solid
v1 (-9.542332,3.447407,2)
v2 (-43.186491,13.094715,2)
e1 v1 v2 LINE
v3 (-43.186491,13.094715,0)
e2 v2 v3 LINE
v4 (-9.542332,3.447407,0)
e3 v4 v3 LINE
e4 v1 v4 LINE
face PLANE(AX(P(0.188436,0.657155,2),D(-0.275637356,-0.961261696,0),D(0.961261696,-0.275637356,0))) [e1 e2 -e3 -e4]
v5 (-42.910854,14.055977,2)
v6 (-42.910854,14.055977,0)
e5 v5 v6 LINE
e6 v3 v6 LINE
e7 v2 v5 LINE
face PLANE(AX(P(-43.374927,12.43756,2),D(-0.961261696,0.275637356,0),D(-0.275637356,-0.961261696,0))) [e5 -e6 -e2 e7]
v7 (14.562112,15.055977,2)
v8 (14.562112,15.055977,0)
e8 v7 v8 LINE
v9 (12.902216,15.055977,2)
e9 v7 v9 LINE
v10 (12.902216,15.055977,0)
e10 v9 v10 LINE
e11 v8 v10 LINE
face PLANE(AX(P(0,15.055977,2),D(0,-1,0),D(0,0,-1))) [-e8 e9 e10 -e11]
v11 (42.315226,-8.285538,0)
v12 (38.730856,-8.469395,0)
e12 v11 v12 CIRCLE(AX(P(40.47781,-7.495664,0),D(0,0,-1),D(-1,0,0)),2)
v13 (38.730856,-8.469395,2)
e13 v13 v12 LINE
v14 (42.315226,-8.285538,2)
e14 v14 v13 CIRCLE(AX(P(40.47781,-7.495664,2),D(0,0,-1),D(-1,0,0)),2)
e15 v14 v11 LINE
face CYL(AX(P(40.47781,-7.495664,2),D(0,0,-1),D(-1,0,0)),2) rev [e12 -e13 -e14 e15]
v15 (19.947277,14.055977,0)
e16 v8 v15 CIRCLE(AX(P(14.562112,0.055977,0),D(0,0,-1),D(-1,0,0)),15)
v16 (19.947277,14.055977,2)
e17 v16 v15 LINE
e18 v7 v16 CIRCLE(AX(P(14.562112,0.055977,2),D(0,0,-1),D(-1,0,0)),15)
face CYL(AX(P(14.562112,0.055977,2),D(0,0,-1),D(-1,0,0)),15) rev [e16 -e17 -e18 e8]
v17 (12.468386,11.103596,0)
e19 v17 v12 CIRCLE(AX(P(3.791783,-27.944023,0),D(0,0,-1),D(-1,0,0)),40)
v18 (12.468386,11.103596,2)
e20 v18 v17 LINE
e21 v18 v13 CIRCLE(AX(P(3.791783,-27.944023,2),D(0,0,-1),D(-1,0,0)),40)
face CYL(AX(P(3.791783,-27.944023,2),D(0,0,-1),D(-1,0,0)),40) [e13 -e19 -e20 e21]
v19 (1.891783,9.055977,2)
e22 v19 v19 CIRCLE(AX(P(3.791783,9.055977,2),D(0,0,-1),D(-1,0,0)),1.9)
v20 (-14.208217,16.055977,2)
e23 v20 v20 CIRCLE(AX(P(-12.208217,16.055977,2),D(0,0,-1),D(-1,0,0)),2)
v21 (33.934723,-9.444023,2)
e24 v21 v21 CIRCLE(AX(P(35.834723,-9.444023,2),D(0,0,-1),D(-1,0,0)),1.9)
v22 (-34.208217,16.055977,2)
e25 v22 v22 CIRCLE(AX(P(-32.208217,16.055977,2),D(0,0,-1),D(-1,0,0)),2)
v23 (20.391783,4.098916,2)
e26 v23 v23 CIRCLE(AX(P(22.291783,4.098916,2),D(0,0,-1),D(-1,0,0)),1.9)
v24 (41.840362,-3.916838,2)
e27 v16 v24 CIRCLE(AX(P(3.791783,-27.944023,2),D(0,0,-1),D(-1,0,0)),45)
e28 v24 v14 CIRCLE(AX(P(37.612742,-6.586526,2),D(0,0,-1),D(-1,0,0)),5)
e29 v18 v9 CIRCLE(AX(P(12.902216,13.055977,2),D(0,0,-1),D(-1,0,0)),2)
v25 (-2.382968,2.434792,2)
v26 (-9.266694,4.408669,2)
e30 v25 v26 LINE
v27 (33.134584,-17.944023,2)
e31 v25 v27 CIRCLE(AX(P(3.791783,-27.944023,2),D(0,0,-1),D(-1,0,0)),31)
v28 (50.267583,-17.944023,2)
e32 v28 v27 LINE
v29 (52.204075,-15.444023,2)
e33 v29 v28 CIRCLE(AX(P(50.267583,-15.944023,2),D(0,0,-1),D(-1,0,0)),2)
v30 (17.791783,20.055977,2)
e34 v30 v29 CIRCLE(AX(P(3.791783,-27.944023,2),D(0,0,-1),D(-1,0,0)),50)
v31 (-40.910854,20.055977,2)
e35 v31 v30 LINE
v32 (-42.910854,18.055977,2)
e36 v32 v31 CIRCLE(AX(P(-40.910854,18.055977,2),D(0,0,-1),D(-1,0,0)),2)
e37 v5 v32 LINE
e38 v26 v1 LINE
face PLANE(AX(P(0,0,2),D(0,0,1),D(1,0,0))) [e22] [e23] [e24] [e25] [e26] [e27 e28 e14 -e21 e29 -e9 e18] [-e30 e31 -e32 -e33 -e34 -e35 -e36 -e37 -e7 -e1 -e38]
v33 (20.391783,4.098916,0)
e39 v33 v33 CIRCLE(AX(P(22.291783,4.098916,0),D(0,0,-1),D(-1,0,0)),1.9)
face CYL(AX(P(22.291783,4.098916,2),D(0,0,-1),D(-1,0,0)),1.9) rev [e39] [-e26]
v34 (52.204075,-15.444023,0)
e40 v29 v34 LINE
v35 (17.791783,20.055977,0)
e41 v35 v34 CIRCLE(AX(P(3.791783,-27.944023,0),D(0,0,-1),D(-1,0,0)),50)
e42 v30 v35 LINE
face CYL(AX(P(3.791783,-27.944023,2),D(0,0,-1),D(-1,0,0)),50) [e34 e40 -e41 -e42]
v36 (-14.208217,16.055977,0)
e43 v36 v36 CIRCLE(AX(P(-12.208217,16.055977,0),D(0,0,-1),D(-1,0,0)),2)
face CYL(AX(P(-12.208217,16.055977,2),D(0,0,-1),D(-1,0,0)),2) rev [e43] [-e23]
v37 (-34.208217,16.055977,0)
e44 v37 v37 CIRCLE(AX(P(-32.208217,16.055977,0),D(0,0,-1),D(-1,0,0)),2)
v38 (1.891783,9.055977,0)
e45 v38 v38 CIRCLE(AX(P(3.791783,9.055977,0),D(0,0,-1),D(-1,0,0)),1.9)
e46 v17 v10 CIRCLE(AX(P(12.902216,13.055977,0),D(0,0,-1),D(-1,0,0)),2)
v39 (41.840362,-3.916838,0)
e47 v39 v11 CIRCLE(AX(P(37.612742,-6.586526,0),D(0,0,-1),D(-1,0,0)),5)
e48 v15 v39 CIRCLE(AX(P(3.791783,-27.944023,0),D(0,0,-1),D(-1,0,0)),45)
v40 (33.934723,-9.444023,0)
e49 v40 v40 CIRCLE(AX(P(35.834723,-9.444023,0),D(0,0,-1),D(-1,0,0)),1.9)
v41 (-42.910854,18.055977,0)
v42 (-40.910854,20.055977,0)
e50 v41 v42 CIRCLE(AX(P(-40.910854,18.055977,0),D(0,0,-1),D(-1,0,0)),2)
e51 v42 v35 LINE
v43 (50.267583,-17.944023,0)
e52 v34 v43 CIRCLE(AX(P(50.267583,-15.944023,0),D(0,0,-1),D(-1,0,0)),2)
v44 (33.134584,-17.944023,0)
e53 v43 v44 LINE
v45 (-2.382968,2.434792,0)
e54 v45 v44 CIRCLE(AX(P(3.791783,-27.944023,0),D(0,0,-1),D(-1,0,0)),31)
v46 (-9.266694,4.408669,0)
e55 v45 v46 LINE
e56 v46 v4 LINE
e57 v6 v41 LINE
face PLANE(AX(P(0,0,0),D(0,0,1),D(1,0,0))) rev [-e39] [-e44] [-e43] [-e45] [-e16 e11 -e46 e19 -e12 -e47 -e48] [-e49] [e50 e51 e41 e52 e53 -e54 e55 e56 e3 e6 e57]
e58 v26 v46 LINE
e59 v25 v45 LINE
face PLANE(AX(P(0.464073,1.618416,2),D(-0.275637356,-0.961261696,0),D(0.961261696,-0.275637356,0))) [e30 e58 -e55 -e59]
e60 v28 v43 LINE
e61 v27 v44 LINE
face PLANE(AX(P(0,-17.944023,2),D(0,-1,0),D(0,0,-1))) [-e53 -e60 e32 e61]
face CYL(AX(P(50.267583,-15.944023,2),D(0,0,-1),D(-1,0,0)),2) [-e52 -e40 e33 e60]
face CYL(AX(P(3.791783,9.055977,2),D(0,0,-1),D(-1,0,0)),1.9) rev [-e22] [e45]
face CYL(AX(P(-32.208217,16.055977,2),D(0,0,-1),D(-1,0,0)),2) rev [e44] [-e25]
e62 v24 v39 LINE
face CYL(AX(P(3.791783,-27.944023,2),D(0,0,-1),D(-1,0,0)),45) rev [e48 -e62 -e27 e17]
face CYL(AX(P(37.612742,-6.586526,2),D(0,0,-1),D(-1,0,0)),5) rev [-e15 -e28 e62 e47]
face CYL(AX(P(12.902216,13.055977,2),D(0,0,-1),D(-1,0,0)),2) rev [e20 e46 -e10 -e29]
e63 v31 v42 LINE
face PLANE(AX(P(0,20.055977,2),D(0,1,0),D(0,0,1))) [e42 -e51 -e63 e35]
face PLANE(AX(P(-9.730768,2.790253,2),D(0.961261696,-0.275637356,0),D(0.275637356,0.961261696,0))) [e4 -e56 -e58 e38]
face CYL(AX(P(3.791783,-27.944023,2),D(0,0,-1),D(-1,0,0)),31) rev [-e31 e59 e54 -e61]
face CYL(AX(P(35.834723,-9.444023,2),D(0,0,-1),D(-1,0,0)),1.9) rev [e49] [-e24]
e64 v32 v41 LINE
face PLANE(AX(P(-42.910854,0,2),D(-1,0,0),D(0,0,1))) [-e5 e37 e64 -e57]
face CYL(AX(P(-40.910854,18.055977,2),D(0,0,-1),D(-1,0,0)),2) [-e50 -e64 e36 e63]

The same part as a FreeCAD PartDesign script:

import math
import FreeCAD as App
import Part
import Sketcher
from FreeCAD import Vector
Q = App.Units.Quantity

doc = App.newDocument("Part")
body = doc.addObject("PartDesign::Body", "Body")

sketch1 = body.newObject("Sketcher::SketchObject", "Sketch")
sketch1.AttachmentSupport = (doc.getObject("XY_Plane"), [""])
sketch1.MapMode = "FlatFace"
sketch1.addGeometry(Part.LineSegment(Vector(-64.217737, 32.735995, 0), Vector(-64.217737, -32.735995, 0)), False)
sketch1.addGeometry(Part.LineSegment(Vector(-64.217737, -32.735995, 0), Vector(64.217737, -32.735995, 0)), False)
sketch1.addGeometry(Part.LineSegment(Vector(64.217737, -32.735995, 0), Vector(64.217737, 32.735995, 0)), False)
sketch1.addGeometry(Part.LineSegment(Vector(64.217737, 32.735995, 0), Vector(-64.217737, 32.735995, 0)), False)
sketch1.addConstraint(Sketcher.Constraint("Coincident", 0, 2, 1, 1))
sketch1.addConstraint(Sketcher.Constraint("Coincident", 1, 2, 2, 1))
sketch1.addConstraint(Sketcher.Constraint("Coincident", 2, 2, 3, 1))
sketch1.addConstraint(Sketcher.Constraint("Coincident", 3, 2, 0, 1))
sketch1.addConstraint(Sketcher.Constraint("Vertical", 0))
sketch1.addConstraint(Sketcher.Constraint("Horizontal", 1))
sketch1.addConstraint(Sketcher.Constraint("Vertical", 2))
sketch1.addConstraint(Sketcher.Constraint("Horizontal", 3))
sketch1.addConstraint(Sketcher.Constraint("Symmetric", 0, 2, 2, 2, -1, 1))
sketch1.addConstraint(Sketcher.Constraint("DistanceY", 0, 2, 0, 1, Q("65.47199 mm")))
sketch1.addConstraint(Sketcher.Constraint("DistanceX", 1, 1, 1, 2, Q("128.435474 mm")))
pad1 = body.newObject("PartDesign::Pad", "Pad")
pad1.Profile = sketch1
pad1.Length = 2

sketch2 = body.newObject("Sketcher::SketchObject", "Sketch001")
sketch2.AttachmentSupport = (doc.getObject("XY_Plane"), [""])
sketch2.MapMode = "FlatFace"
sketch2.addGeometry(Part.LineSegment(Vector(64.217737, 32.735995, 0), Vector(64.217737, -32.735995, 0)), False)
sketch2.addGeometry(Part.LineSegment(Vector(64.217737, -32.735995, 0), Vector(-64.217737, -32.735995, 0)), False)
sketch2.addGeometry(Part.LineSegment(Vector(-64.217737, -32.735995, 0), Vector(-64.217737, 32.735995, 0)), False)
sketch2.addGeometry(Part.LineSegment(Vector(-64.217737, 32.735995, 0), Vector(64.217737, 32.735995, 0)), False)
sketch2.addGeometry(Part.ArcOfCircle(Part.Circle(Vector(50.267583, -15.944023, 0), Vector(0, 0, 1), 2), math.radians(-90), math.radians(14.477512)), False)
sketch2.addGeometry(Part.ArcOfCircle(Part.Circle(Vector(3.791783, -27.944023, 0), Vector(0, 0, 1), 50), math.radians(14.477512), math.radians(73.739795)), False)
sketch2.addGeometry(Part.LineSegment(Vector(17.791783, 20.055977, 0), Vector(-40.910854, 20.055977, 0)), False)
sketch2.addGeometry(Part.ArcOfCircle(Part.Circle(Vector(-40.910854, 18.055977, 0), Vector(0, 0, 1), 2), math.radians(90), math.radians(180)), False)
sketch2.addGeometry(Part.LineSegment(Vector(-42.910854, 18.055977, 0), Vector(-42.910854, 14.055977, 0)), False)
sketch2.addGeometry(Part.LineSegment(Vector(-42.910854, 14.055977, 0), Vector(-43.186491, 13.094715, 0)), False)
sketch2.addGeometry(Part.LineSegment(Vector(-43.186491, 13.094715, 0), Vector(-19.604064, 6.332563, 0)), False)
sketch2.addGeometry(Part.LineSegment(Vector(-19.604064, 6.332563, 0), Vector(-9.542332, 3.447407, 0)), False)
sketch2.addGeometry(Part.LineSegment(Vector(-9.542332, 3.447407, 0), Vector(-9.266694, 4.408669, 0)), False)
sketch2.addGeometry(Part.LineSegment(Vector(-9.266694, 4.408669, 0), Vector(-2.382968, 2.434792, 0)), False)
sketch2.addGeometry(Part.ArcOfCircle(Part.Circle(Vector(3.791783, -27.944023, 0), Vector(0, 0, 1), 31), math.radians(18.819063), math.radians(101.489334)), False)
sketch2.addGeometry(Part.LineSegment(Vector(33.134584, -17.944023, 0), Vector(50.267583, -17.944023, 0)), False)
sketch2.addGeometry(Part.ArcOfCircle(Part.Circle(Vector(12.902216, 13.055977, 0), Vector(0, 0, 1), 2), math.radians(-176.725453), math.radians(-102.527905)), False)
sketch2.addGeometry(Part.ArcOfCircle(Part.Circle(Vector(12.902216, 13.055977, 0), Vector(0, 0, 1), 2), math.radians(90), math.radians(183.274547)), False)
sketch2.addGeometry(Part.LineSegment(Vector(12.902216, 15.055977, 0), Vector(14.562112, 15.055977, 0)), False)
sketch2.addGeometry(Part.ArcOfCircle(Part.Circle(Vector(14.562112, 0.055977, 0), Vector(0, 0, 1), 15), math.radians(68.96053), math.radians(90)), False)
sketch2.addGeometry(Part.ArcOfCircle(Part.Circle(Vector(3.791783, -27.944023, 0), Vector(0, 0, 1), 45), math.radians(32.27188), math.radians(68.96053)), False)
sketch2.addGeometry(Part.ArcOfCircle(Part.Circle(Vector(37.612742, -6.586526, 0), Vector(0, 0, 1), 5), math.radians(-19.864847), math.radians(32.27188)), False)
sketch2.addGeometry(Part.ArcOfCircle(Part.Circle(Vector(40.47781, -7.495664, 0), Vector(0, 0, 1), 2), math.radians(-76.667671), math.radians(-23.26207)), False)
sketch2.addGeometry(Part.ArcOfCircle(Part.Circle(Vector(40.47781, -7.495664, 0), Vector(0, 0, 1), 2), math.radians(-150.865219), math.radians(-76.667671)), False)
sketch2.addGeometry(Part.ArcOfCircle(Part.Circle(Vector(3.791783, -27.944023, 0), Vector(0, 0, 1), 40), math.radians(29.134781), math.radians(77.472095)), False)
sketch2.addConstraint(Sketcher.Constraint("Coincident", 0, 2, 1, 1))
sketch2.addConstraint(Sketcher.Constraint("Coincident", 1, 2, 2, 1))
sketch2.addConstraint(Sketcher.Constraint("Coincident", 2, 2, 3, 1))
sketch2.addConstraint(Sketcher.Constraint("Coincident", 3, 2, 0, 1))
sketch2.addConstraint(Sketcher.Constraint("Tangent", 4, 2, 5, 1))
sketch2.addConstraint(Sketcher.Constraint("Coincident", 5, 2, 6, 1))
sketch2.addConstraint(Sketcher.Constraint("Tangent", 6, 2, 7, 1))
sketch2.addConstraint(Sketcher.Constraint("Tangent", 7, 2, 8, 1))
sketch2.addConstraint(Sketcher.Constraint("Coincident", 8, 2, 9, 1))
sketch2.addConstraint(Sketcher.Constraint("Coincident", 9, 2, 10, 1))
sketch2.addConstraint(Sketcher.Constraint("Coincident", 10, 2, 11, 1))
sketch2.addConstraint(Sketcher.Constraint("Coincident", 11, 2, 12, 1))
sketch2.addConstraint(Sketcher.Constraint("Coincident", 12, 2, 13, 1))
sketch2.addConstraint(Sketcher.Constraint("Coincident", 13, 2, 14, 2))
sketch2.addConstraint(Sketcher.Constraint("Coincident", 14, 1, 15, 1))
sketch2.addConstraint(Sketcher.Constraint("Tangent", 15, 2, 4, 1))
sketch2.addConstraint(Sketcher.Constraint("Tangent", 16, 1, 17, 2))
sketch2.addConstraint(Sketcher.Constraint("Tangent", 17, 1, 18, 1))
sketch2.addConstraint(Sketcher.Constraint("Tangent", 18, 2, 19, 2))
sketch2.addConstraint(Sketcher.Constraint("Tangent", 19, 1, 20, 2))
sketch2.addConstraint(Sketcher.Constraint("Tangent", 20, 1, 21, 2))
sketch2.addConstraint(Sketcher.Constraint("Coincident", 21, 1, 22, 2))
sketch2.addConstraint(Sketcher.Constraint("Tangent", 22, 1, 23, 2))
sketch2.addConstraint(Sketcher.Constraint("Tangent", 23, 1, 24, 1))
sketch2.addConstraint(Sketcher.Constraint("Tangent", 24, 2, 16, 2))
sketch2.addConstraint(Sketcher.Constraint("Vertical", 0))
sketch2.addConstraint(Sketcher.Constraint("Horizontal", 1))
sketch2.addConstraint(Sketcher.Constraint("Vertical", 2))
sketch2.addConstraint(Sketcher.Constraint("Horizontal", 3))
sketch2.addConstraint(Sketcher.Constraint("Horizontal", 6))
sketch2.addConstraint(Sketcher.Constraint("Vertical", 8))
sketch2.addConstraint(Sketcher.Constraint("Horizontal", 15))
sketch2.addConstraint(Sketcher.Constraint("Horizontal", 18))
sketch2.addConstraint(Sketcher.Constraint("Coincident", 14, 3, 5, 3))
sketch2.addConstraint(Sketcher.Constraint("Coincident", 20, 3, 5, 3))
sketch2.addConstraint(Sketcher.Constraint("Coincident", 24, 3, 5, 3))
sketch2.addConstraint(Sketcher.Constraint("Equal", 4, 7))
sketch2.addConstraint(Sketcher.Constraint("Equal", 7, 16))
sketch2.addConstraint(Sketcher.Constraint("Equal", 16, 17))
sketch2.addConstraint(Sketcher.Constraint("Equal", 17, 22))
sketch2.addConstraint(Sketcher.Constraint("Equal", 22, 23))
sketch2.addConstraint(Sketcher.Constraint("Symmetric", 0, 2, 2, 2, -1, 1))
sketch2.addConstraint(Sketcher.Constraint("Perpendicular", 9, 10))
sketch2.addConstraint(Sketcher.Constraint("Parallel", 10, 11))
sketch2.addConstraint(Sketcher.Constraint("Perpendicular", 11, 12))
sketch2.addConstraint(Sketcher.Constraint("Perpendicular", 12, 13))
sketch2.addConstraint(Sketcher.Constraint("Horizontal", 8, 2, 19, 1))
sketch2.addConstraint(Sketcher.Constraint("Equal", 9, 12))
sketch2.addConstraint(Sketcher.Constraint("Radius", 4, Q("2 mm")))
sketch2.addConstraint(Sketcher.Constraint("Radius", 5, Q("50 mm")))
sketch2.addConstraint(Sketcher.Constraint("Radius", 14, Q("31 mm")))
sketch2.addConstraint(Sketcher.Constraint("Radius", 19, Q("15 mm")))
sketch2.addConstraint(Sketcher.Constraint("Radius", 20, Q("45 mm")))
sketch2.addConstraint(Sketcher.Constraint("Radius", 21, Q("5 mm")))
sketch2.addConstraint(Sketcher.Constraint("Radius", 24, Q("40 mm")))
sketch2.addConstraint(Sketcher.Constraint("DistanceY", 8, 2, 8, 1, Q("4 mm")))
sketch2.addConstraint(Sketcher.Constraint("Angle", 9, Q("-106 deg")))
sketch2.addConstraint(Sketcher.Constraint("Distance", 9, Q("1 mm")))
sketch2.addConstraint(Sketcher.Constraint("DistanceY", 5, 3, 4, 3, Q("12 mm")))
sketch2.addConstraint(Sketcher.Constraint("DistanceY", 5, 3, 7, 3, Q("46 mm")))
sketch2.addConstraint(Sketcher.Constraint("DistanceY", 0, 2, 0, 1, Q("65.47199 mm")))
sketch2.addConstraint(Sketcher.Constraint("DistanceY", 21, 1, 20, 1, Q("4.3687 mm")))
sketch2.addConstraint(Sketcher.Constraint("DistanceX", 1, 2, 1, 1, Q("128.435474 mm")))
sketch2.addConstraint(Sketcher.Constraint("DistanceX", 6, 2, 6, 1, Q("58.702636 mm")))
sketch2.addConstraint(Sketcher.Constraint("DistanceX", -1, 1, 22, 3, Q("40.47781 mm")))
sketch2.addConstraint(Sketcher.Constraint("DistanceX", 9, 2, -1, 1, Q("43.186491 mm")))
sketch2.addConstraint(Sketcher.Constraint("DistanceX", 11, 2, -1, 1, Q("9.542332 mm")))
sketch2.addConstraint(Sketcher.Constraint("DistanceY", -1, 1, 12, 2, Q("4.408669 mm")))
sketch2.addConstraint(Sketcher.Constraint("DistanceX", -1, 1, 16, 1, Q("10.905482 mm")))
sketch2.addConstraint(Sketcher.Constraint("DistanceY", 22, 1, -1, 1, Q("9.441761 mm")))
sketch2.addConstraint(Sketcher.Constraint("DistanceX", 7, 3, 10, 2, Q("21.30679 mm")))
pocket1 = body.newObject("PartDesign::Pocket", "Pocket")
pocket1.Profile = sketch2
pocket1.Length = 2
pocket1.Reversed = True

sketch3 = body.newObject("Sketcher::SketchObject", "Sketch002")
sketch3.AttachmentSupport = (doc.getObject("XY_Plane"), [""])
sketch3.MapMode = "FlatFace"
sketch3.addGeometry(Part.Circle(Vector(-32.208217, 16.055977, 0), Vector(0, 0, 1), 2), False)
sketch3.addGeometry(Part.Circle(Vector(-12.208217, 16.055977, 0), Vector(0, 0, 1), 2), False)
sketch3.addGeometry(Part.Circle(Vector(3.791783, 9.055977, 0), Vector(0, 0, 1), 1.9), False)
sketch3.addGeometry(Part.Circle(Vector(35.834723, -9.444023, 0), Vector(0, 0, 1), 1.9), False)
sketch3.addGeometry(Part.Circle(Vector(22.291783, 4.098916, 0), Vector(0, 0, 1), 1.9), False)
sketch3.addConstraint(Sketcher.Constraint("Equal", 0, 1))
sketch3.addConstraint(Sketcher.Constraint("Equal", 2, 3))
sketch3.addConstraint(Sketcher.Constraint("Equal", 3, 4))
sketch3.addConstraint(Sketcher.Constraint("Horizontal", 0, 3, 1, 3))
sketch3.addConstraint(Sketcher.Constraint("Diameter", 0, Q("4 mm")))
sketch3.addConstraint(Sketcher.Constraint("Diameter", 2, Q("3.8 mm")))
sketch3.addConstraint(Sketcher.Constraint("DistanceX", 0, 3, 1, 3, Q("20 mm")))
sketch3.addConstraint(Sketcher.Constraint("DistanceX", 1, 3, 2, 3, Q("16 mm")))
sketch3.addConstraint(Sketcher.Constraint("DistanceY", 2, 3, 1, 3, Q("7 mm")))
sketch3.addConstraint(Sketcher.Constraint("DistanceY", 3, 3, 2, 3, Q("18.5 mm")))
sketch3.addConstraint(Sketcher.Constraint("DistanceX", 2, 3, 4, 3, Q("18.5 mm")))
sketch3.addConstraint(Sketcher.Constraint("DistanceX", 2, 3, 3, 3, Q("32.04294 mm")))
sketch3.addConstraint(Sketcher.Constraint("DistanceY", 3, 3, 4, 3, Q("13.54294 mm")))
sketch3.addConstraint(Sketcher.Constraint("DistanceX", 0, 3, -1, 1, Q("32.208217 mm")))
sketch3.addConstraint(Sketcher.Constraint("DistanceY", -1, 1, 0, 3, Q("16.055977 mm")))
pocket2 = body.newObject("PartDesign::Pocket", "Pocket001")
pocket2.Profile = sketch3
pocket2.Length = 2
pocket2.Reversed = True

doc.recompute()
